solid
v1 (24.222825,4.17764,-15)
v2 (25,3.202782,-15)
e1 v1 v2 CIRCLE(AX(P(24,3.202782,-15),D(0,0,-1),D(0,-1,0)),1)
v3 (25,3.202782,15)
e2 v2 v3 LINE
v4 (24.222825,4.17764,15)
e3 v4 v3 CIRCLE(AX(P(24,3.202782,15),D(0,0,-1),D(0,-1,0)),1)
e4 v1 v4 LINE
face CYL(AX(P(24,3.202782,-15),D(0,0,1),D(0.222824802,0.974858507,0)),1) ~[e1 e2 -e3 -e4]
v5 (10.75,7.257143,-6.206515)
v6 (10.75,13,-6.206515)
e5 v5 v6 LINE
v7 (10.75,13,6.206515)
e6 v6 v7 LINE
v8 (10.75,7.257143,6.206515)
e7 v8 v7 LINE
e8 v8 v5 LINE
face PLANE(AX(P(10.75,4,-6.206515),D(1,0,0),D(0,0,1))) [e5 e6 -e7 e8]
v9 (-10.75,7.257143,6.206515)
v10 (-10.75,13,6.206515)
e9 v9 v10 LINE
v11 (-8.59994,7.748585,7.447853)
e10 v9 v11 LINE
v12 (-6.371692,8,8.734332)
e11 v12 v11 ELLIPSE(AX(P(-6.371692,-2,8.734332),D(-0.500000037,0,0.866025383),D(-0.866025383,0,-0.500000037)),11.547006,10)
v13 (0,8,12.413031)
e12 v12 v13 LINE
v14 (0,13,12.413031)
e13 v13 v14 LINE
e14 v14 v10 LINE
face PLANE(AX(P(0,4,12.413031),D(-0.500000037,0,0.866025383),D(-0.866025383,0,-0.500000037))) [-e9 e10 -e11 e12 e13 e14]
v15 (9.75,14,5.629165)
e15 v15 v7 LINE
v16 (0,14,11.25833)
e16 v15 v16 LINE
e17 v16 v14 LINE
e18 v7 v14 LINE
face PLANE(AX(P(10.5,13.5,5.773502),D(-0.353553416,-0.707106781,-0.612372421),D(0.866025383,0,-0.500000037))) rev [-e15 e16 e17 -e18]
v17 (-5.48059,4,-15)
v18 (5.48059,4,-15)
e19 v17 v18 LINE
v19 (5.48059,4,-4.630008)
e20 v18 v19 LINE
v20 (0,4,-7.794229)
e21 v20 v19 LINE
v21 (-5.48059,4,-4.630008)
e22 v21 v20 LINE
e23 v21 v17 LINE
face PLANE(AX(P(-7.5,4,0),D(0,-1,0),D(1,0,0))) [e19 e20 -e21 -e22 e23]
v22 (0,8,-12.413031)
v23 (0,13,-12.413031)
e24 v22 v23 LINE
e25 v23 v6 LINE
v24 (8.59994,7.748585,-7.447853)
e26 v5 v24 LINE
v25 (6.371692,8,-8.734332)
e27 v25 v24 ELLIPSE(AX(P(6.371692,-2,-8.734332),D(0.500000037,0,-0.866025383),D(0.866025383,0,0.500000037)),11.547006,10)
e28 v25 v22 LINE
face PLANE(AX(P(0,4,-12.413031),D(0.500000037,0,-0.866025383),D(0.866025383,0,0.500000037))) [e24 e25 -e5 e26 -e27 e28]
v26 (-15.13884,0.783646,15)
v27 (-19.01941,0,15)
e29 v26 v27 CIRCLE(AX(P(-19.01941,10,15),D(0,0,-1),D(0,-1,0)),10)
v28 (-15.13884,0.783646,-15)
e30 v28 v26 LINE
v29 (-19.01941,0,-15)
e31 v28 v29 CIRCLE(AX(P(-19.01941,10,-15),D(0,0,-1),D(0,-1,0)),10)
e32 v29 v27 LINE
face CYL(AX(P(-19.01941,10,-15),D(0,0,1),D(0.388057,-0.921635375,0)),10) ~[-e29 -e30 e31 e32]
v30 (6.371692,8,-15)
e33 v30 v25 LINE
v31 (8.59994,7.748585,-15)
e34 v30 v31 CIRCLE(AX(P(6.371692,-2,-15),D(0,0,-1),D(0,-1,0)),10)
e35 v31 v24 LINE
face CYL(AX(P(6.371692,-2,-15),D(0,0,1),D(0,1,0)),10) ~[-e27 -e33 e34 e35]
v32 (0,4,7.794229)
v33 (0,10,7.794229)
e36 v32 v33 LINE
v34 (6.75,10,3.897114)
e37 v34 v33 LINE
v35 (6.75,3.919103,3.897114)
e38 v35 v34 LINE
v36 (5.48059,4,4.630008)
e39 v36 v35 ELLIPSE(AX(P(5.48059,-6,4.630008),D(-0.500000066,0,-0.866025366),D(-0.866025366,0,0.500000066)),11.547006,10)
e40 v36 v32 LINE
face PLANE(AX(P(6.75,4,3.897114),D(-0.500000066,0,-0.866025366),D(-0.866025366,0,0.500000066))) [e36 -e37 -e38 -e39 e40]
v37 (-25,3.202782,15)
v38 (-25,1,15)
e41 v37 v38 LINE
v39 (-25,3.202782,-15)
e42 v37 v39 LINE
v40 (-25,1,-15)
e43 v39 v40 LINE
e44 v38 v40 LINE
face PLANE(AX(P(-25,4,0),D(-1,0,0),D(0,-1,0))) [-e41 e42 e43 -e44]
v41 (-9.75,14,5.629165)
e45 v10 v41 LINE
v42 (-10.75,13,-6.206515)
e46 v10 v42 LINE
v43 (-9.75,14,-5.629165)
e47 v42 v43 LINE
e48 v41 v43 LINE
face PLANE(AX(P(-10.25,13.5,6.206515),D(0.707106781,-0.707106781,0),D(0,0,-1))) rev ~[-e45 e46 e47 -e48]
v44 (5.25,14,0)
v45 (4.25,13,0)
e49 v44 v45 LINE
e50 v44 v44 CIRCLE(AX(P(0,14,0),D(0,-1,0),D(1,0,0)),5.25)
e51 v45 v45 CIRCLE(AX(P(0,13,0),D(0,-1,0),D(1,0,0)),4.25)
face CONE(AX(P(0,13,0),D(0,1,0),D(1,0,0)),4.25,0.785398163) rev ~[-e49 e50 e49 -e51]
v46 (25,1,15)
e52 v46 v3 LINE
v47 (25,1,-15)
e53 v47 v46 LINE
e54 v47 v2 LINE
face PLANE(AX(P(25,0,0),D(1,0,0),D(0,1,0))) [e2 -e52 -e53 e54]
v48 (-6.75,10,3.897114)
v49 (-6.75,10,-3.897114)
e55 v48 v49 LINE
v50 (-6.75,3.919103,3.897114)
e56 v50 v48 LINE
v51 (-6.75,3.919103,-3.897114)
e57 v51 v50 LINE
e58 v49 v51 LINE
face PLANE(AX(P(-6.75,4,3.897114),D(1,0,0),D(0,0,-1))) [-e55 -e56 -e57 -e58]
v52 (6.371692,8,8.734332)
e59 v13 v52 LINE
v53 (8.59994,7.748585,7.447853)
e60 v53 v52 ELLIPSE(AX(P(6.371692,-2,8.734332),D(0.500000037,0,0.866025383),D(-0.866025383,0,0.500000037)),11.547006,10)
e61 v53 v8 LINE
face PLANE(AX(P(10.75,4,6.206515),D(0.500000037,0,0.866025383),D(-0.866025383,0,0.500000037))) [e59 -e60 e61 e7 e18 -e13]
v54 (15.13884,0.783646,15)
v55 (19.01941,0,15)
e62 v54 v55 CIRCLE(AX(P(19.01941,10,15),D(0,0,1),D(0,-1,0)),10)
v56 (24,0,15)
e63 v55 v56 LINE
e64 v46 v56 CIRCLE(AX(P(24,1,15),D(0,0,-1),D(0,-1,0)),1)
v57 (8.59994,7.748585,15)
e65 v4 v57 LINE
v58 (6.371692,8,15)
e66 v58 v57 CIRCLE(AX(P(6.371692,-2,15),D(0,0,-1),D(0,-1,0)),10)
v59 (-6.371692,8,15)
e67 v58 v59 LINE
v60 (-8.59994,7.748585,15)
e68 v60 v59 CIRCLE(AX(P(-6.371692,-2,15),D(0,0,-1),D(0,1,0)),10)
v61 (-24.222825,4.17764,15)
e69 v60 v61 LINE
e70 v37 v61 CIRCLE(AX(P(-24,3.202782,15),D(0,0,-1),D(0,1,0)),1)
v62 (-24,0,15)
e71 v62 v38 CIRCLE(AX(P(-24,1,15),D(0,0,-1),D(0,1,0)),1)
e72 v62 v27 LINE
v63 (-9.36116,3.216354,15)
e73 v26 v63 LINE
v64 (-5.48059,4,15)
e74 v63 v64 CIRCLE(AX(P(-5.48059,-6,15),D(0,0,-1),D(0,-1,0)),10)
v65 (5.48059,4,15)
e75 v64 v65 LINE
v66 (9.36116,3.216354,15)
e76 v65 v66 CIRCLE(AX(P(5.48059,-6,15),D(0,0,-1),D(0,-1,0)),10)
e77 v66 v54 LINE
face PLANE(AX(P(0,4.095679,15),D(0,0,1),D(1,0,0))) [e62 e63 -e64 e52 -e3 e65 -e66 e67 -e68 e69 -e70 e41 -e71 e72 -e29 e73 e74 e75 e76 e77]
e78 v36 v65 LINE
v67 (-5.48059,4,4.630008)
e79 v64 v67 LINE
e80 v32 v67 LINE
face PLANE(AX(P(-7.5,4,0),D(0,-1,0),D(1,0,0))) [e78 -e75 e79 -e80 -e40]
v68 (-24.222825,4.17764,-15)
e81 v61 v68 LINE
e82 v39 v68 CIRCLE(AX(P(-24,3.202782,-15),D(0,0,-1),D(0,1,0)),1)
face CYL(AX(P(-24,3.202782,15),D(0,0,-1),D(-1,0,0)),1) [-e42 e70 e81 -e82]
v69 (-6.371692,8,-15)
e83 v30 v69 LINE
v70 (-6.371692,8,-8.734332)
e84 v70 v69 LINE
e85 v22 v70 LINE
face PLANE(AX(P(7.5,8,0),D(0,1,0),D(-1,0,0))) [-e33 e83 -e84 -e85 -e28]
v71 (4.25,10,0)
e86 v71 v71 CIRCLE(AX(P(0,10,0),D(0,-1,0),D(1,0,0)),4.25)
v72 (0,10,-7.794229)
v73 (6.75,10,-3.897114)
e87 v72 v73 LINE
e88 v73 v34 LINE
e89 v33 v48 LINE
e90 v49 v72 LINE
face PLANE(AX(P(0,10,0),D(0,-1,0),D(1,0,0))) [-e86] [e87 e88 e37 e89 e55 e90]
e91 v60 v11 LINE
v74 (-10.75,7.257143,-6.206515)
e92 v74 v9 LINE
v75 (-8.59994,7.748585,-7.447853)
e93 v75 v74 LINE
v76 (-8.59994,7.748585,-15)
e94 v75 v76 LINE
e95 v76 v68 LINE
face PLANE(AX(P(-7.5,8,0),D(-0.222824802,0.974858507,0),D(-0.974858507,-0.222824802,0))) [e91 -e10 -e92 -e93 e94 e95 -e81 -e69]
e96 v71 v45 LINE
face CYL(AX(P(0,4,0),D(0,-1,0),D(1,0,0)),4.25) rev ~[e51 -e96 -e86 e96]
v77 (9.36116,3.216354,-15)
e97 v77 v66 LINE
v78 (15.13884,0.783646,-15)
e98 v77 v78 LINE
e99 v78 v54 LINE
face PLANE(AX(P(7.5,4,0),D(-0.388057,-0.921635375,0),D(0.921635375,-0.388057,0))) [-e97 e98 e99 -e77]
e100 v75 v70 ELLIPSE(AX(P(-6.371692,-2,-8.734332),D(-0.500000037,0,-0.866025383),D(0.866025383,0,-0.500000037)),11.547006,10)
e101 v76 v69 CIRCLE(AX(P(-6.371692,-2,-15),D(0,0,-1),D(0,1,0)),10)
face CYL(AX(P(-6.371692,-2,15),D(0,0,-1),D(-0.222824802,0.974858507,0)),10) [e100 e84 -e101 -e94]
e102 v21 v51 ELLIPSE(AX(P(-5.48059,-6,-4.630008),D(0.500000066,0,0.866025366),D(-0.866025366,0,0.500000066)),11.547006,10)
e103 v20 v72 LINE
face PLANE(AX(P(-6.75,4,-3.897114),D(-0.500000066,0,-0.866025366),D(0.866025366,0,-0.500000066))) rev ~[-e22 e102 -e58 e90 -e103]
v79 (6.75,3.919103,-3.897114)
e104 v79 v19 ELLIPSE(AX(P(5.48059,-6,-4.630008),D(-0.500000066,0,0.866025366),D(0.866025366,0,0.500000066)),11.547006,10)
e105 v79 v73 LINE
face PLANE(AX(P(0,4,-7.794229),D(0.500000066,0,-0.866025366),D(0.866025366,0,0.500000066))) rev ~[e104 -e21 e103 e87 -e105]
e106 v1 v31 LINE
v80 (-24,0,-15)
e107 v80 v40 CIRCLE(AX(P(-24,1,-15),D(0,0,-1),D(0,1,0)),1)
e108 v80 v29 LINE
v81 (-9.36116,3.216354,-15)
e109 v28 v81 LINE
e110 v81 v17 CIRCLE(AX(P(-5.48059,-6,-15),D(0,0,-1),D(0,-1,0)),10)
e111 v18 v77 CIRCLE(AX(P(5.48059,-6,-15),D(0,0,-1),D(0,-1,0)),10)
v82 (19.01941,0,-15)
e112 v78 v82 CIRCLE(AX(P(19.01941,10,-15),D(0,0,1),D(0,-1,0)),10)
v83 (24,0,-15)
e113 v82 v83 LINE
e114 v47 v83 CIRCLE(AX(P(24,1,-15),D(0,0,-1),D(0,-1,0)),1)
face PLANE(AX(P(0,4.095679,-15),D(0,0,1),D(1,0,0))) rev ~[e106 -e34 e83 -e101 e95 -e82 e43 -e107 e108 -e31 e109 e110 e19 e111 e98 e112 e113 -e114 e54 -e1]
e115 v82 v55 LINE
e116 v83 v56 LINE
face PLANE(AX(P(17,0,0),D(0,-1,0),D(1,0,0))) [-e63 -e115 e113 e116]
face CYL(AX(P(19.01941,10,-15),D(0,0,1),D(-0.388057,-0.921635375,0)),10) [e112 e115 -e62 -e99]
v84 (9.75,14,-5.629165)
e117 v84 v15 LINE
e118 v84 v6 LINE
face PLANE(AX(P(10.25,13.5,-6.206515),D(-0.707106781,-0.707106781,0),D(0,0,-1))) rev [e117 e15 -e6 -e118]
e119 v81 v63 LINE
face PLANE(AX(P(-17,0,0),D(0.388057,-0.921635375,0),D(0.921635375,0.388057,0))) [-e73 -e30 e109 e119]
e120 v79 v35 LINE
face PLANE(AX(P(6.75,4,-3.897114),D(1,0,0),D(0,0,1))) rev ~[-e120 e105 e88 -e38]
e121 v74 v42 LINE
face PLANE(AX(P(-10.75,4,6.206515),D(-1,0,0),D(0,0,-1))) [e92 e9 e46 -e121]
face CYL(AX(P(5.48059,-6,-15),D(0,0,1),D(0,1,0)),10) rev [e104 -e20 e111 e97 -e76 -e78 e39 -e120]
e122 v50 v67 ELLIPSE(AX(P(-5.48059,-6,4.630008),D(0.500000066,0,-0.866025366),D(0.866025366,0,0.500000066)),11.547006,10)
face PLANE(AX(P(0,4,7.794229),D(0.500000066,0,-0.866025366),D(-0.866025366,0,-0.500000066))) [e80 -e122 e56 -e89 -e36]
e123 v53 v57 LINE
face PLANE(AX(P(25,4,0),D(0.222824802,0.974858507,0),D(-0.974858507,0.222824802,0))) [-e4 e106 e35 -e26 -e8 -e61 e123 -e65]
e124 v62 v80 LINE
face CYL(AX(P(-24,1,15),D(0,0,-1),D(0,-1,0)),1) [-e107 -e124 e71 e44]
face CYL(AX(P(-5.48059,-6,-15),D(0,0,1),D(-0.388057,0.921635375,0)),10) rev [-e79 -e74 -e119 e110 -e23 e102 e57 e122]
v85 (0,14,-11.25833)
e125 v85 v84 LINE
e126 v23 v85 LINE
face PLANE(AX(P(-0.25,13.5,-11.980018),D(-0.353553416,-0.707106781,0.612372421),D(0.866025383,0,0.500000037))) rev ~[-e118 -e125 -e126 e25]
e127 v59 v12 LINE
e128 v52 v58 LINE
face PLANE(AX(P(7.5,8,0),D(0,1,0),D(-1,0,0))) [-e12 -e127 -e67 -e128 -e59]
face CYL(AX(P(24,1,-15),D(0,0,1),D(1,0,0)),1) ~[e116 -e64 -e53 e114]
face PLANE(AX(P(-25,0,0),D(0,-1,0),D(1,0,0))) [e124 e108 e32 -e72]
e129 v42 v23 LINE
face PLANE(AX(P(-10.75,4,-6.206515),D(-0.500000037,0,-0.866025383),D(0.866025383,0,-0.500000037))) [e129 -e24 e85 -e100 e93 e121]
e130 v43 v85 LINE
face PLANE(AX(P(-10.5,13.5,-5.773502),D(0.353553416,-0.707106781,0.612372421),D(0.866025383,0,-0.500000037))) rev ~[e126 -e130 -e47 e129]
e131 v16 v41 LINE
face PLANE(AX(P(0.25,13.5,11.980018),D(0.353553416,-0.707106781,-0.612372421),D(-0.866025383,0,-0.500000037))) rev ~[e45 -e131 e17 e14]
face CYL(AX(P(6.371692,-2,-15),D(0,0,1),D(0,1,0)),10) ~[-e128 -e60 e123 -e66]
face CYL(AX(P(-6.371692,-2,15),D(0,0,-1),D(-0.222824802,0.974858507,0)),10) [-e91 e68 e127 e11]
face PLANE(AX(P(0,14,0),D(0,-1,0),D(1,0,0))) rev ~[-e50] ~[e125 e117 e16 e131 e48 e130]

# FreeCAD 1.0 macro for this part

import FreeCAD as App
import Part
import Sketcher
from FreeCAD import Vector
Q = App.Units.Quantity


def edges_at(feature, points):
    """Names of the edges that pass closest to the given points."""
    edges = feature.Shape.Edges
    near = lambda p: min(range(len(edges)), key=lambda i: edges[i].distToShape(Part.Vertex(*p))[0])
    return sorted({f"Edge{near(p) + 1}" for p in points})


def add_polygon(sketch, points):
    """Adds a closed chain of lines whose ends are joined by coincident constraints."""
    first, n = sketch.GeometryCount, len(points)
    for a, b in zip(points, points[1:] + points[:1]):
        sketch.addGeometry(Part.LineSegment(App.Vector(*a, 0), App.Vector(*b, 0)), False)
    for i in range(n):
        sketch.addConstraint(Sketcher.Constraint("Coincident", first + i, 2, first + (i + 1) % n, 1))

doc = App.newDocument("Part")
params = doc.addObject("Spreadsheet::Sheet", "Params")
for row, (alias, value) in enumerate([
    ("sketch1_width", "8 mm"),
    ("sketch1_width2", "15 mm"),
    ("sketch1_height", "4 mm"),
    ("pad1_length", "30 mm"),
    ("sketch2_diameter", "8.5 mm"),
    ("pocket1_length", "25 mm"),
    ("chamfer_size", "1 mm"),
    ("fillet_radius", "10 mm"),
    ("fillet2_radius", "1 mm"),
    ("fillet3_radius", "10 mm"),
    ("pad2_length", "10 mm"),
    ("sketch4_diameter", "8.5 mm"),
    ("pocket2_length", "25 mm"),
    ("pocket3_length", "6 mm"),
    ("pocket3_length2", "15 mm"),
    ("chamfer2_size", "1 mm"),
], start=1):
    params.set(f"A{row}", alias)
    params.set(f"B{row}", "=" + value)
    params.setAlias(f"B{row}", alias)

body = doc.addObject("PartDesign::Body", "Body")

# Sketch on XY plane
sketch1 = body.newObject("Sketcher::SketchObject", "Sketch")
sketch1.AttachmentSupport = (doc.getObject("XY_Plane"), [""])
sketch1.MapMode = "FlatFace"
add_polygon(sketch1, [(-25, 0), (-17, 0), (-7.5, 4), (7.5, 4), (17, 0), (25, 0), (25, 4), (7.5, 8), (-7.5, 8), (-25, 4)])  # lines 0-9
sketch1.addConstraint(Sketcher.Constraint("Horizontal", 0))
sketch1.addConstraint(Sketcher.Constraint("Horizontal", 2))
sketch1.addConstraint(Sketcher.Constraint("Horizontal", 4))
sketch1.addConstraint(Sketcher.Constraint("Vertical", 5))
sketch1.addConstraint(Sketcher.Constraint("Horizontal", 7))
sketch1.addConstraint(Sketcher.Constraint("Vertical", 9))
sketch1.addConstraint(Sketcher.Constraint("Symmetric", 0, 2, 3, 2, -1, 1))
sketch1.addConstraint(Sketcher.Constraint("Symmetric", 5, 2, 8, 2, -2))
sketch1.addConstraint(Sketcher.Constraint("PointOnObject", 0, 2, -1))
sketch1.addConstraint(Sketcher.Constraint("Horizontal", 2, 2, 5, 2))
sketch1.addConstraint(Sketcher.Constraint("Vertical", 2, 2, 6, 2))
sketch1.addConstraint(Sketcher.Constraint("Vertical", 1, 2, 7, 2))
sketch1.addConstraint(Sketcher.Constraint("Equal", 1, 3))
sketch1.addConstraint(Sketcher.Constraint("DistanceX", 0, 1, 0, 2, Q("8 mm")))
sketch1.addConstraint(Sketcher.Constraint("DistanceX", 2, 1, 2, 2, Q("15 mm")))
sketch1.addConstraint(Sketcher.Constraint("DistanceY", 5, 1, 5, 2, Q("4 mm")))
sketch1.addConstraint(Sketcher.Constraint("DistanceX", 0, 2, -1, 1, Q("17 mm")))
sketch1.addConstraint(Sketcher.Constraint("DistanceY", -1, 1, 6, 2, Q("8 mm")))
sketch1.setExpression("Constraints[23]", "Params.sketch1_width")
sketch1.setExpression("Constraints[24]", "Params.sketch1_width2")
sketch1.setExpression("Constraints[25]", "Params.sketch1_height")
pad1 = body.newObject("PartDesign::Pad", "Pad")
pad1.Profile = sketch1
pad1.setExpression("Length", "Params.pad1_length")
pad1.Midplane = True

# Sketch on XZ plane
sketch2 = body.newObject("Sketcher::SketchObject", "Sketch001")
sketch2.AttachmentSupport = (doc.getObject("XZ_Plane"), [""])
sketch2.MapMode = "FlatFace"
sketch2.addGeometry(Part.Circle(Vector(0, 0, 0), Vector(0, 0, 1), 4.2), False)
sketch2.addConstraint(Sketcher.Constraint("Coincident", 0, 3, -1, 1))
sketch2.addConstraint(Sketcher.Constraint("Diameter", 0, Q("8.5 mm")))
sketch2.setExpression("Constraints[1]", "Params.sketch2_diameter")
pocket1 = body.newObject("PartDesign::Pocket", "Pocket")
pocket1.Profile = sketch2
pocket1.setExpression("Length", "Params.pocket1_length")
doc.recompute()

chamfer = body.newObject("PartDesign::Chamfer", "Chamfer")
chamfer.Base = (pocket1, edges_at(pocket1, [(-4.25, 4, 0), (-4.25, 8, 0)]))
chamfer.setExpression("Size", "Params.chamfer_size")
doc.recompute()

fillet = body.newObject("PartDesign::Fillet", "Fillet")
fillet.Base = (chamfer, edges_at(chamfer, [(-17, 0, 0), (17, 0, 0)]))
fillet.setExpression("Radius", "Params.fillet_radius")
doc.recompute()

fillet2 = body.newObject("PartDesign::Fillet", "Fillet001")
fillet2.Base = (fillet, edges_at(fillet, [
    (25, 0, 0),
    (25, 4, 0),
    (-25, 0, 0),
    (-25, 4, 0),
]))
fillet2.setExpression("Radius", "Params.fillet2_radius")
doc.recompute()

fillet3 = body.newObject("PartDesign::Fillet", "Fillet002")
fillet3.Base = (fillet2, edges_at(fillet2, [
    (-7.5, 4, 0),
    (7.5, 4, 0),
    (7.5, 8, 0),
    (-7.5, 8, 0),
]))
fillet3.setExpression("Radius", "Params.fillet3_radius")

# Sketch on XZ plane
sketch3 = body.newObject("Sketcher::SketchObject", "Sketch002")
sketch3.AttachmentSupport = (doc.getObject("XZ_Plane"), [""])
sketch3.MapMode = "FlatFace"
sketch3.AttachmentOffset = App.Placement(Vector(0, 0, -4), App.Rotation())
add_polygon(sketch3, [(11, -6), (11, 6), (0, 12), (-11, 6), (-11, -6), (0, -12)])  # lines 0-5
sketch3.addConstraint(Sketcher.Constraint("Vertical", 0))
sketch3.addConstraint(Sketcher.Constraint("Vertical", 3))
sketch3.addConstraint(Sketcher.Constraint("Symmetric", 0, 2, 3, 2, -1, 1))
sketch3.addConstraint(Sketcher.Constraint("Symmetric", 1, 2, 4, 2, -1, 1))
sketch3.addConstraint(Sketcher.Constraint("PointOnObject", 1, 2, -2))
sketch3.addConstraint(Sketcher.Constraint("Parallel", 2, 5))
sketch3.addConstraint(Sketcher.Constraint("Horizontal", 0, 2, 2, 2))
sketch3.addConstraint(Sketcher.Constraint("Angle", 1, Q("149.999998 deg")))
sketch3.addConstraint(Sketcher.Constraint("DistanceX", 2, 2, 0, 2, Q("21.5 mm")))
sketch3.addConstraint(Sketcher.Constraint("DistanceY", 0, 1, 0, 2, Q("12.41303 mm")))
pad2 = body.newObject("PartDesign::Pad", "Pad001")
pad2.Profile = sketch3
pad2.setExpression("Length", "Params.pad2_length")
pad2.Reversed = True

# Sketch on XZ plane
sketch4 = body.newObject("Sketcher::SketchObject", "Sketch003")
sketch4.AttachmentSupport = (doc.getObject("XZ_Plane"), [""])
sketch4.MapMode = "FlatFace"
sketch4.AttachmentOffset = App.Placement(Vector(0, 0, -4), App.Rotation())
sketch4.addGeometry(Part.Circle(Vector(0, 0, 0), Vector(0, 0, 1), 4.2), False)
sketch4.addConstraint(Sketcher.Constraint("Coincident", 0, 3, -1, 1))
sketch4.addConstraint(Sketcher.Constraint("Diameter", 0, Q("8.5 mm")))
sketch4.setExpression("Constraints[1]", "Params.sketch4_diameter")
pocket2 = body.newObject("PartDesign::Pocket", "Pocket001")
pocket2.Profile = sketch4
pocket2.setExpression("Length", "Params.pocket2_length")

# Sketch on XZ plane
sketch5 = body.newObject("Sketcher::SketchObject", "Sketch004")
sketch5.AttachmentSupport = (doc.getObject("XZ_Plane"), [""])
sketch5.MapMode = "FlatFace"
sketch5.AttachmentOffset = App.Placement(Vector(0, 0, -4), App.Rotation())
add_polygon(sketch5, [(7, -4), (7, 4), (0, 8), (-7, 4), (-7, -4), (0, -8)])  # lines 0-5
sketch5.addConstraint(Sketcher.Constraint("Vertical", 0))
sketch5.addConstraint(Sketcher.Constraint("Vertical", 3))
sketch5.addConstraint(Sketcher.Constraint("Symmetric", 0, 2, 3, 2, -1, 1))
sketch5.addConstraint(Sketcher.Constraint("Symmetric", 1, 2, 4, 2, -1, 1))
sketch5.addConstraint(Sketcher.Constraint("PointOnObject", 1, 2, -2))
sketch5.addConstraint(Sketcher.Constraint("Parallel", 2, 5))
sketch5.addConstraint(Sketcher.Constraint("Horizontal", 0, 2, 2, 2))
sketch5.addConstraint(Sketcher.Constraint("Angle", 1, Q("149.999996 deg")))
sketch5.addConstraint(Sketcher.Constraint("DistanceX", 2, 2, 0, 2, Q("13.5 mm")))
sketch5.addConstraint(Sketcher.Constraint("DistanceY", 0, 1, 0, 2, Q("7.794228 mm")))
pocket3 = body.newObject("PartDesign::Pocket", "Pocket002")
pocket3.Profile = sketch5
pocket3.Type = "TwoLengths"
pocket3.setExpression("Length", "Params.pocket3_length")
pocket3.setExpression("Length2", "Params.pocket3_length2")
doc.recompute()

chamfer2 = body.newObject("PartDesign::Chamfer", "Chamfer001")
chamfer2.Base = (pocket3, edges_at(pocket3, [
    (10.75, 14, 0),
    (5.375, 14, -9.31),
    (5.375, 14, 9.31),
    (-5.375, 14, -9.31),
    (-5.375, 14, 9.31),
    (-10.75, 14, 0),
    (-4.25, 14, 0),
]))
chamfer2.setExpression("Size", "Params.chamfer2_size")

doc.recompute()
